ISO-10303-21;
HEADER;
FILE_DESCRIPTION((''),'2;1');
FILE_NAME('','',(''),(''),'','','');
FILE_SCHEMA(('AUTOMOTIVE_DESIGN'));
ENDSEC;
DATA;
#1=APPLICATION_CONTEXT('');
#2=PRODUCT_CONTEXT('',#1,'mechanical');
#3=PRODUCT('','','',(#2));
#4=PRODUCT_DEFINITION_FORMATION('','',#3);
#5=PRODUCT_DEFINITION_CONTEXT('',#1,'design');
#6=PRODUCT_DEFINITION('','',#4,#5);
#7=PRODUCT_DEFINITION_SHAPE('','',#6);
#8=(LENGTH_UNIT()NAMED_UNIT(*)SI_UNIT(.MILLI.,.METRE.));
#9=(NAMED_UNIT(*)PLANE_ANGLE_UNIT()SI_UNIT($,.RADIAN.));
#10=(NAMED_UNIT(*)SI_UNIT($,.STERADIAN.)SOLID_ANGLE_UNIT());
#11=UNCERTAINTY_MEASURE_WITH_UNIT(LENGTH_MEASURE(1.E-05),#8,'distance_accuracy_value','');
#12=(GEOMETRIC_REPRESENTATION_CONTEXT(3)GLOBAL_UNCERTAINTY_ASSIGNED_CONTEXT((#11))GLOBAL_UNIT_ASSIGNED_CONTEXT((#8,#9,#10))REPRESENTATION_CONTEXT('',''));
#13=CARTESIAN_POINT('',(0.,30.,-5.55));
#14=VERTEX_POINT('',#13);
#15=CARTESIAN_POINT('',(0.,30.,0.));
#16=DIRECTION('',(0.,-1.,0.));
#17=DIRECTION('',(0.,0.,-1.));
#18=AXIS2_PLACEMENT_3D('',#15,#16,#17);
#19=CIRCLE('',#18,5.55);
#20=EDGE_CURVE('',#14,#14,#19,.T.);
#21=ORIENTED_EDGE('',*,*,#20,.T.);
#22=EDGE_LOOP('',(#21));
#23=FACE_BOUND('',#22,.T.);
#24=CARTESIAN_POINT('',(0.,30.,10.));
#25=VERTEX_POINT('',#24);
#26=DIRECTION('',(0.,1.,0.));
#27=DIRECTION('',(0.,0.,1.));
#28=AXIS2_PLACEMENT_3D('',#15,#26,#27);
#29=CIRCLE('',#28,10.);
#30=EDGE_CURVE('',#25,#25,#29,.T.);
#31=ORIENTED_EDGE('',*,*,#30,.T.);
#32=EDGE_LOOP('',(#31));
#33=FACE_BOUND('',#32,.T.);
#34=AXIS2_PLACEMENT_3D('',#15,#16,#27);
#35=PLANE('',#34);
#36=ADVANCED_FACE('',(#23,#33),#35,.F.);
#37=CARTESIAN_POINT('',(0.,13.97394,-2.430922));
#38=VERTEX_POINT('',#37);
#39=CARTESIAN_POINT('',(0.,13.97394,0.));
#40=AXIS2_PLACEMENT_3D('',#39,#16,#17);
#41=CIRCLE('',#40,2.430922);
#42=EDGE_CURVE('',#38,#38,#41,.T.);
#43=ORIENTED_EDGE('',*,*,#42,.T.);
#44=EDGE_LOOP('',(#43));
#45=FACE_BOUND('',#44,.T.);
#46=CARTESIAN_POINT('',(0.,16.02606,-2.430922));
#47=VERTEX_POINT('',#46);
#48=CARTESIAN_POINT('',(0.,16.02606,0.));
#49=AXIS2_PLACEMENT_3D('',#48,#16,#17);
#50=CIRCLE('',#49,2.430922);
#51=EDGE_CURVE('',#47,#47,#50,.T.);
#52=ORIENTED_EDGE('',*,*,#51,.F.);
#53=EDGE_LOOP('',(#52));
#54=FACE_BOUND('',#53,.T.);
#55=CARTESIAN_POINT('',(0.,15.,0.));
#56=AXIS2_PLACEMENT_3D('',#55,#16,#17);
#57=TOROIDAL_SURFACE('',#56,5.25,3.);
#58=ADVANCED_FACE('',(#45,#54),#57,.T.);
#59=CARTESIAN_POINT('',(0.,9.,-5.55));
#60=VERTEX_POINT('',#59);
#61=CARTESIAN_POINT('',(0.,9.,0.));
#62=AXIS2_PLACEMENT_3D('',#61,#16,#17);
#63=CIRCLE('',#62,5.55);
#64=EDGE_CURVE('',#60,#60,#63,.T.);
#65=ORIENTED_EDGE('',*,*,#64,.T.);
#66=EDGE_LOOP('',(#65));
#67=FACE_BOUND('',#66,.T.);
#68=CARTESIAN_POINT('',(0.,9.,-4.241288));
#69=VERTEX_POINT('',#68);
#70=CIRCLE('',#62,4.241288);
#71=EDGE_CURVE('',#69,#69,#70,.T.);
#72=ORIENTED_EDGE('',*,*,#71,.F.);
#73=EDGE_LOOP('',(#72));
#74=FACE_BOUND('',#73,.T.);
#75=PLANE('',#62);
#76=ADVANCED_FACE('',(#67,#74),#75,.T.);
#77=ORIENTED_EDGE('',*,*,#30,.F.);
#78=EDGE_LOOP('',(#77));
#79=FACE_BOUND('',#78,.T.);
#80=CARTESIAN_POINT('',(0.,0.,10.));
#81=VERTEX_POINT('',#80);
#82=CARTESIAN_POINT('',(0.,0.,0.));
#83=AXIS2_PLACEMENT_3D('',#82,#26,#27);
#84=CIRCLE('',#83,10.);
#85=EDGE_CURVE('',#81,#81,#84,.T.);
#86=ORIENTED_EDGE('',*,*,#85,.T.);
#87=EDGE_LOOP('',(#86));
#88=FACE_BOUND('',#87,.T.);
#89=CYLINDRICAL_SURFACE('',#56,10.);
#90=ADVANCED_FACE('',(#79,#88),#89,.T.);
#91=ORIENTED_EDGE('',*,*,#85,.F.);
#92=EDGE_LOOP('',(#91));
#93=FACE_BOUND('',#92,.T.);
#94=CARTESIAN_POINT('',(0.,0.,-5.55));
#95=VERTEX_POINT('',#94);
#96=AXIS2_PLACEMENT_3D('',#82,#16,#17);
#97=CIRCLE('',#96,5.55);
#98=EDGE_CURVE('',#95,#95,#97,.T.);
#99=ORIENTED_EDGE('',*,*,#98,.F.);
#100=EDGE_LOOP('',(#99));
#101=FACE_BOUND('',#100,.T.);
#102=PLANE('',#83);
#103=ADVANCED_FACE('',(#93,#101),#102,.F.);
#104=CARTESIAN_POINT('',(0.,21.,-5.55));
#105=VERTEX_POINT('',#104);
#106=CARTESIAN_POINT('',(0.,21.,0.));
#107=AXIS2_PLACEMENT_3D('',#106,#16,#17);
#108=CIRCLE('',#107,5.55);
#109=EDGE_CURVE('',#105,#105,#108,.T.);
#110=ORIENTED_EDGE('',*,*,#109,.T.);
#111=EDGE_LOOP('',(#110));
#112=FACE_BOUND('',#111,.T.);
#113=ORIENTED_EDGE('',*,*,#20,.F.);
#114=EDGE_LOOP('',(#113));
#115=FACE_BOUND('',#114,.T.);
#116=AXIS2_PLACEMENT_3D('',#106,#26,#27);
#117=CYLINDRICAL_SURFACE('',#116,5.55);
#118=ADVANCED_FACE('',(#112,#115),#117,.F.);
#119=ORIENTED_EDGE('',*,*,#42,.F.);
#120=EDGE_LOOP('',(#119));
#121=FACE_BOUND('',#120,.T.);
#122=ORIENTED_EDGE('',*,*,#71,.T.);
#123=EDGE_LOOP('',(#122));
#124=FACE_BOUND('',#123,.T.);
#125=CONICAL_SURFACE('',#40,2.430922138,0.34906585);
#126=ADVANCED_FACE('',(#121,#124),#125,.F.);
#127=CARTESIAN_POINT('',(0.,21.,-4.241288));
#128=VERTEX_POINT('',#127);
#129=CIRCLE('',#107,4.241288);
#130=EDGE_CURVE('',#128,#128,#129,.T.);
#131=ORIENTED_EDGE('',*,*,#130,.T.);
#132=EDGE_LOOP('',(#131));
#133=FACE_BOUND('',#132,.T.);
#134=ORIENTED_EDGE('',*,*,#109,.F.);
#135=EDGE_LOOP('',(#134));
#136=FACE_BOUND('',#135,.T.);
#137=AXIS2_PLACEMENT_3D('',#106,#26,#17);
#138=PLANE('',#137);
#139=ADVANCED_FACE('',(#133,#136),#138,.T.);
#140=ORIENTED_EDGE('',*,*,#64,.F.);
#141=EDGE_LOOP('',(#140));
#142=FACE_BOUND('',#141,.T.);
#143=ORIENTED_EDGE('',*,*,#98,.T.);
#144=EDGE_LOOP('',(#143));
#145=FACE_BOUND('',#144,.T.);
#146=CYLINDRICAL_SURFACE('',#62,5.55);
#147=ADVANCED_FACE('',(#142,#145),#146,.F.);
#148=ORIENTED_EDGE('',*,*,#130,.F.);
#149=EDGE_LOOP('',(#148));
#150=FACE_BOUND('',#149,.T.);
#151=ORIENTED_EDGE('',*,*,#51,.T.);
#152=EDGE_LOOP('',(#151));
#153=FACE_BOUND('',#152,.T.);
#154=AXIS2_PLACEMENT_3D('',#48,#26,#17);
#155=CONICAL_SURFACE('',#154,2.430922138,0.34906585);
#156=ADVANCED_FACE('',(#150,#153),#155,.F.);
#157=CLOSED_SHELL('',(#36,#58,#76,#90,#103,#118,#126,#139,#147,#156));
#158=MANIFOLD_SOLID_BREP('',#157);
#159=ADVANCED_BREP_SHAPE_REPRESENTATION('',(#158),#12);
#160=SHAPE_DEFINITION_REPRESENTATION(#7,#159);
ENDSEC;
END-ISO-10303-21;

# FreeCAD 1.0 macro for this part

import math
import FreeCAD as App
import Part
import Sketcher

V = App.Vector
Q = App.Units.Quantity

doc = App.newDocument("Part")
params = doc.addObject("Spreadsheet::Sheet", "Params")
for row, (alias, value) in enumerate([
    ("sketch1_diameter", "20 mm"),
    ("pad1_length", "15 mm"),
    ("sketch2_diameter", "11.1 mm"),
    ("pocket1_length", "9 mm"),
    ("sketch3_radius", "3 mm"),
    ("sketch3_height", "6 mm"),
    ("sketch3_width", "2.25 mm"),
    ("groove_angle", "360 deg"),
], start=1):
    params.set(f"A{row}", alias)
    params.set(f"B{row}", "=" + value)
    params.setAlias(f"B{row}", alias)

body = doc.addObject("PartDesign::Body", "Body")

sketch1 = body.newObject("Sketcher::SketchObject", "Sketch")
sketch1.AttachmentSupport = (doc.getObject("XZ_Plane"), [""])
sketch1.MapMode = "FlatFace"
sketch1.addGeometry(Part.Circle(V(0, 0, 0), V(0, 0, 1), 10), False)
sketch1.addConstraint([
    Sketcher.Constraint("Coincident", 0, 3, -1, 1),
    Sketcher.Constraint("Diameter", 0, Q("20 mm")),
])
sketch1.setExpression("Constraints[1]", "Params.sketch1_diameter")
pad1 = body.newObject("PartDesign::Pad", "Pad")
pad1.Profile = sketch1
pad1.setExpression("Length", "Params.pad1_length")
pad1.Reversed = True

sketch2 = body.newObject("Sketcher::SketchObject", "Sketch001")
sketch2.AttachmentSupport = (doc.getObject("XZ_Plane"), [""])
sketch2.MapMode = "FlatFace"
sketch2.addGeometry(Part.Circle(V(0, 0, 0), V(0, 0, 1), 6), False)
sketch2.addConstraint([
    Sketcher.Constraint("Coincident", 0, 3, -1, 1),
    Sketcher.Constraint("Diameter", 0, Q("11.1 mm")),
])
sketch2.setExpression("Constraints[1]", "Params.sketch2_diameter")
pocket1 = body.newObject("PartDesign::Pocket", "Pocket")
pocket1.Profile = sketch2
pocket1.setExpression("Length", "Params.pocket1_length")

sketch3 = body.newObject("Sketcher::SketchObject", "Sketch002")
sketch3.AttachmentSupport = (doc.getObject("XY_Plane"), [""])
sketch3.MapMode = "FlatFace"
sketch3.addGeometry([
    Part.LineSegment(V(-4.2, 9, 0), V(0, 9, 0)),
    Part.LineSegment(V(0, 9, 0), V(0, 15, 0)),
    Part.LineSegment(V(0, 15, 0), V(-2.2, 15, 0)),
    Part.ArcOfCircle(Part.Circle(V(-5.2, 15, 0), V(0, 0, 1), 3), math.radians(-20), math.radians(0)),
    Part.LineSegment(V(-2.4, 14, 0), V(-4.2, 9, 0)),
], False)
sketch3.addConstraint([
    Sketcher.Constraint("Coincident", 0, 2, 1, 1),
    Sketcher.Constraint("Coincident", 1, 2, 2, 1),
    Sketcher.Constraint("Coincident", 2, 2, 3, 2),
    Sketcher.Constraint("Tangent", 3, 1, 4, 1),
    Sketcher.Constraint("Coincident", 4, 2, 0, 1),
    Sketcher.Constraint("Horizontal", 0),
    Sketcher.Constraint("Vertical", 1),
    Sketcher.Constraint("Horizontal", 2),
    Sketcher.Constraint("PointOnObject", 0, 2, -2),
    Sketcher.Constraint("Horizontal", 3, 3, 1, 2),
    Sketcher.Constraint("Radius", 3, Q("3 mm")),
    Sketcher.Constraint("DistanceY", 1, 1, 1, 2, Q("6 mm")),
    Sketcher.Constraint("Angle", 4, Q("-110 deg")),
    Sketcher.Constraint("DistanceY", -1, 1, 3, 3, Q("15 mm")),
    Sketcher.Constraint("DistanceX", 2, 2, 2, 1, Q("2.25 mm")),
])
sketch3.setExpression("Constraints[10]", "Params.sketch3_radius")
sketch3.setExpression("Constraints[11]", "Params.sketch3_height")
sketch3.setExpression("Constraints[14]", "Params.sketch3_width")
groove = body.newObject("PartDesign::Groove", "Groove")
groove.Profile = sketch3
groove.ReferenceAxis = (sketch3, ["V_Axis"])
groove.setExpression("Angle", "Params.groove_angle")
doc.recompute()

datumplane = body.newObject("PartDesign::Plane", "DatumPlane")
datumplane.AttachmentSupport = (doc.getObject("XZ_Plane"), [""])
datumplane.MapMode = "FlatFace"
datumplane.AttachmentOffset = App.Placement(V(0, 0, -15), App.Rotation())
mirrored = body.newObject("PartDesign::Mirrored", "Mirrored")
mirrored.Originals = [pad1, pocket1, groove]
mirrored.MirrorPlane = (datumplane, [""])
body.Tip = mirrored

doc.recompute()
